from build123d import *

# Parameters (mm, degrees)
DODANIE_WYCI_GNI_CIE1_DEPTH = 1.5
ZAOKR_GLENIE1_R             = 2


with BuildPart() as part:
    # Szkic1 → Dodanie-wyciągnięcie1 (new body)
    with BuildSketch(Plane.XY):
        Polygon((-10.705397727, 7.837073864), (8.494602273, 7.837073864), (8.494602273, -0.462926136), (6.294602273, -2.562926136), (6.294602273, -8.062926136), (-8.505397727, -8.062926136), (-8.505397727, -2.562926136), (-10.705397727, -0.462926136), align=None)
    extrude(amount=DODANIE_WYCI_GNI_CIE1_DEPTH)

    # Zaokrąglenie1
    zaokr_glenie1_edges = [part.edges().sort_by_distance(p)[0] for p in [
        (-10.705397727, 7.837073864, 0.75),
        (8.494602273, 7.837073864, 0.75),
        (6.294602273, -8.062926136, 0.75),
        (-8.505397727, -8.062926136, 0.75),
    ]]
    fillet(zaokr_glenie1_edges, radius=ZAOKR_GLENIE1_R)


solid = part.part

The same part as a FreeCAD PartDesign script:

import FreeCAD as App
import Part
import Sketcher

V = App.Vector
Q = App.Units.Quantity


def edges_at(feature, points):
    """Names of the edges that pass closest to the given points."""
    edges = feature.Shape.Edges
    near = lambda p: min(range(len(edges)), key=lambda i: edges[i].distToShape(Part.Vertex(*p))[0])
    return sorted({f"Edge{near(p) + 1}" for p in points})


def add_polygon(sketch, points):
    """Adds a closed chain of lines whose ends are joined by coincident constraints."""
    first, n = sketch.GeometryCount, len(points)
    for a, b in zip(points, points[1:] + points[:1]):
        sketch.addGeometry(Part.LineSegment(App.Vector(*a, 0), App.Vector(*b, 0)), False)
    for i in range(n):
        sketch.addConstraint(Sketcher.Constraint("Coincident", first + i, 2, first + (i + 1) % n, 1))

doc = App.newDocument("Part")
params = doc.addObject("Spreadsheet::Sheet", "Params")
for row, (alias, value) in enumerate([
    ("sketch1_width", "19.2 mm"),
    ("sketch1_width2", "14.8 mm"),
    ("sketch1_height", "8.3 mm"),
    ("sketch1_height2", "5.5 mm"),
    ("pad1_length", "1.5 mm"),
    ("fillet_radius", "2 mm"),
], start=1):
    params.set(f"A{row}", alias)
    params.set(f"B{row}", "=" + value)
    params.setAlias(f"B{row}", alias)

body = doc.addObject("PartDesign::Body", "Body")

# Sketch on XY plane
sketch1 = body.newObject("Sketcher::SketchObject", "Sketch")
sketch1.AttachmentSupport = (doc.getObject("XY_Plane"), [""])
sketch1.MapMode = "FlatFace"
add_polygon(sketch1, [(8.5, 7.8), (-10.7, 7.8), (-10.7, -0.5), (-8.5, -2.6), (-8.5, -8.1), (6.3, -8.1), (6.3, -2.6), (8.5, -0.5)])  # lines 0-7
sketch1.addConstraint(Sketcher.Constraint("Horizontal", 0))
sketch1.addConstraint(Sketcher.Constraint("Vertical", 1))
sketch1.addConstraint(Sketcher.Constraint("Vertical", 3))
sketch1.addConstraint(Sketcher.Constraint("Horizontal", 4))
sketch1.addConstraint(Sketcher.Constraint("Vertical", 5))
sketch1.addConstraint(Sketcher.Constraint("Vertical", 7))
sketch1.addConstraint(Sketcher.Constraint("Horizontal", 2, 2, 5, 2))
sketch1.addConstraint(Sketcher.Constraint("Horizontal", 1, 2, 6, 2))
sketch1.addConstraint(Sketcher.Constraint("Equal", 2, 6))
sketch1.addConstraint(Sketcher.Constraint("DistanceX", 0, 2, 0, 1, Q("19.2 mm")))
sketch1.addConstraint(Sketcher.Constraint("DistanceX", 4, 1, 4, 2, Q("14.8 mm")))
sketch1.addConstraint(Sketcher.Constraint("DistanceY", 1, 2, 1, 1, Q("8.3 mm")))
sketch1.addConstraint(Sketcher.Constraint("DistanceY", 3, 2, 3, 1, Q("5.5 mm")))
sketch1.addConstraint(Sketcher.Constraint("DistanceY", 2, 2, 1, 2, Q("2.1 mm")))
sketch1.addConstraint(Sketcher.Constraint("DistanceX", 0, 2, -1, 1, Q("10.705398 mm")))
sketch1.addConstraint(Sketcher.Constraint("DistanceY", -1, 1, 0, 2, Q("7.837074 mm")))
sketch1.setExpression("Constraints[17]", "Params.sketch1_width")
sketch1.setExpression("Constraints[18]", "Params.sketch1_width2")
sketch1.setExpression("Constraints[19]", "Params.sketch1_height")
sketch1.setExpression("Constraints[20]", "Params.sketch1_height2")
pad1 = body.newObject("PartDesign::Pad", "Pad")
pad1.Profile = sketch1
pad1.setExpression("Length", "Params.pad1_length")
doc.recompute()

fillet = body.newObject("PartDesign::Fillet", "Fillet")
fillet.Base = (pad1, edges_at(pad1, [
    (-10.705, 7.837, 0.75),
    (8.495, 7.837, 0.75),
    (6.295, -8.063, 0.75),
    (-8.505, -8.063, 0.75),
]))
fillet.setExpression("Radius", "Params.fillet_radius")

doc.recompute()
